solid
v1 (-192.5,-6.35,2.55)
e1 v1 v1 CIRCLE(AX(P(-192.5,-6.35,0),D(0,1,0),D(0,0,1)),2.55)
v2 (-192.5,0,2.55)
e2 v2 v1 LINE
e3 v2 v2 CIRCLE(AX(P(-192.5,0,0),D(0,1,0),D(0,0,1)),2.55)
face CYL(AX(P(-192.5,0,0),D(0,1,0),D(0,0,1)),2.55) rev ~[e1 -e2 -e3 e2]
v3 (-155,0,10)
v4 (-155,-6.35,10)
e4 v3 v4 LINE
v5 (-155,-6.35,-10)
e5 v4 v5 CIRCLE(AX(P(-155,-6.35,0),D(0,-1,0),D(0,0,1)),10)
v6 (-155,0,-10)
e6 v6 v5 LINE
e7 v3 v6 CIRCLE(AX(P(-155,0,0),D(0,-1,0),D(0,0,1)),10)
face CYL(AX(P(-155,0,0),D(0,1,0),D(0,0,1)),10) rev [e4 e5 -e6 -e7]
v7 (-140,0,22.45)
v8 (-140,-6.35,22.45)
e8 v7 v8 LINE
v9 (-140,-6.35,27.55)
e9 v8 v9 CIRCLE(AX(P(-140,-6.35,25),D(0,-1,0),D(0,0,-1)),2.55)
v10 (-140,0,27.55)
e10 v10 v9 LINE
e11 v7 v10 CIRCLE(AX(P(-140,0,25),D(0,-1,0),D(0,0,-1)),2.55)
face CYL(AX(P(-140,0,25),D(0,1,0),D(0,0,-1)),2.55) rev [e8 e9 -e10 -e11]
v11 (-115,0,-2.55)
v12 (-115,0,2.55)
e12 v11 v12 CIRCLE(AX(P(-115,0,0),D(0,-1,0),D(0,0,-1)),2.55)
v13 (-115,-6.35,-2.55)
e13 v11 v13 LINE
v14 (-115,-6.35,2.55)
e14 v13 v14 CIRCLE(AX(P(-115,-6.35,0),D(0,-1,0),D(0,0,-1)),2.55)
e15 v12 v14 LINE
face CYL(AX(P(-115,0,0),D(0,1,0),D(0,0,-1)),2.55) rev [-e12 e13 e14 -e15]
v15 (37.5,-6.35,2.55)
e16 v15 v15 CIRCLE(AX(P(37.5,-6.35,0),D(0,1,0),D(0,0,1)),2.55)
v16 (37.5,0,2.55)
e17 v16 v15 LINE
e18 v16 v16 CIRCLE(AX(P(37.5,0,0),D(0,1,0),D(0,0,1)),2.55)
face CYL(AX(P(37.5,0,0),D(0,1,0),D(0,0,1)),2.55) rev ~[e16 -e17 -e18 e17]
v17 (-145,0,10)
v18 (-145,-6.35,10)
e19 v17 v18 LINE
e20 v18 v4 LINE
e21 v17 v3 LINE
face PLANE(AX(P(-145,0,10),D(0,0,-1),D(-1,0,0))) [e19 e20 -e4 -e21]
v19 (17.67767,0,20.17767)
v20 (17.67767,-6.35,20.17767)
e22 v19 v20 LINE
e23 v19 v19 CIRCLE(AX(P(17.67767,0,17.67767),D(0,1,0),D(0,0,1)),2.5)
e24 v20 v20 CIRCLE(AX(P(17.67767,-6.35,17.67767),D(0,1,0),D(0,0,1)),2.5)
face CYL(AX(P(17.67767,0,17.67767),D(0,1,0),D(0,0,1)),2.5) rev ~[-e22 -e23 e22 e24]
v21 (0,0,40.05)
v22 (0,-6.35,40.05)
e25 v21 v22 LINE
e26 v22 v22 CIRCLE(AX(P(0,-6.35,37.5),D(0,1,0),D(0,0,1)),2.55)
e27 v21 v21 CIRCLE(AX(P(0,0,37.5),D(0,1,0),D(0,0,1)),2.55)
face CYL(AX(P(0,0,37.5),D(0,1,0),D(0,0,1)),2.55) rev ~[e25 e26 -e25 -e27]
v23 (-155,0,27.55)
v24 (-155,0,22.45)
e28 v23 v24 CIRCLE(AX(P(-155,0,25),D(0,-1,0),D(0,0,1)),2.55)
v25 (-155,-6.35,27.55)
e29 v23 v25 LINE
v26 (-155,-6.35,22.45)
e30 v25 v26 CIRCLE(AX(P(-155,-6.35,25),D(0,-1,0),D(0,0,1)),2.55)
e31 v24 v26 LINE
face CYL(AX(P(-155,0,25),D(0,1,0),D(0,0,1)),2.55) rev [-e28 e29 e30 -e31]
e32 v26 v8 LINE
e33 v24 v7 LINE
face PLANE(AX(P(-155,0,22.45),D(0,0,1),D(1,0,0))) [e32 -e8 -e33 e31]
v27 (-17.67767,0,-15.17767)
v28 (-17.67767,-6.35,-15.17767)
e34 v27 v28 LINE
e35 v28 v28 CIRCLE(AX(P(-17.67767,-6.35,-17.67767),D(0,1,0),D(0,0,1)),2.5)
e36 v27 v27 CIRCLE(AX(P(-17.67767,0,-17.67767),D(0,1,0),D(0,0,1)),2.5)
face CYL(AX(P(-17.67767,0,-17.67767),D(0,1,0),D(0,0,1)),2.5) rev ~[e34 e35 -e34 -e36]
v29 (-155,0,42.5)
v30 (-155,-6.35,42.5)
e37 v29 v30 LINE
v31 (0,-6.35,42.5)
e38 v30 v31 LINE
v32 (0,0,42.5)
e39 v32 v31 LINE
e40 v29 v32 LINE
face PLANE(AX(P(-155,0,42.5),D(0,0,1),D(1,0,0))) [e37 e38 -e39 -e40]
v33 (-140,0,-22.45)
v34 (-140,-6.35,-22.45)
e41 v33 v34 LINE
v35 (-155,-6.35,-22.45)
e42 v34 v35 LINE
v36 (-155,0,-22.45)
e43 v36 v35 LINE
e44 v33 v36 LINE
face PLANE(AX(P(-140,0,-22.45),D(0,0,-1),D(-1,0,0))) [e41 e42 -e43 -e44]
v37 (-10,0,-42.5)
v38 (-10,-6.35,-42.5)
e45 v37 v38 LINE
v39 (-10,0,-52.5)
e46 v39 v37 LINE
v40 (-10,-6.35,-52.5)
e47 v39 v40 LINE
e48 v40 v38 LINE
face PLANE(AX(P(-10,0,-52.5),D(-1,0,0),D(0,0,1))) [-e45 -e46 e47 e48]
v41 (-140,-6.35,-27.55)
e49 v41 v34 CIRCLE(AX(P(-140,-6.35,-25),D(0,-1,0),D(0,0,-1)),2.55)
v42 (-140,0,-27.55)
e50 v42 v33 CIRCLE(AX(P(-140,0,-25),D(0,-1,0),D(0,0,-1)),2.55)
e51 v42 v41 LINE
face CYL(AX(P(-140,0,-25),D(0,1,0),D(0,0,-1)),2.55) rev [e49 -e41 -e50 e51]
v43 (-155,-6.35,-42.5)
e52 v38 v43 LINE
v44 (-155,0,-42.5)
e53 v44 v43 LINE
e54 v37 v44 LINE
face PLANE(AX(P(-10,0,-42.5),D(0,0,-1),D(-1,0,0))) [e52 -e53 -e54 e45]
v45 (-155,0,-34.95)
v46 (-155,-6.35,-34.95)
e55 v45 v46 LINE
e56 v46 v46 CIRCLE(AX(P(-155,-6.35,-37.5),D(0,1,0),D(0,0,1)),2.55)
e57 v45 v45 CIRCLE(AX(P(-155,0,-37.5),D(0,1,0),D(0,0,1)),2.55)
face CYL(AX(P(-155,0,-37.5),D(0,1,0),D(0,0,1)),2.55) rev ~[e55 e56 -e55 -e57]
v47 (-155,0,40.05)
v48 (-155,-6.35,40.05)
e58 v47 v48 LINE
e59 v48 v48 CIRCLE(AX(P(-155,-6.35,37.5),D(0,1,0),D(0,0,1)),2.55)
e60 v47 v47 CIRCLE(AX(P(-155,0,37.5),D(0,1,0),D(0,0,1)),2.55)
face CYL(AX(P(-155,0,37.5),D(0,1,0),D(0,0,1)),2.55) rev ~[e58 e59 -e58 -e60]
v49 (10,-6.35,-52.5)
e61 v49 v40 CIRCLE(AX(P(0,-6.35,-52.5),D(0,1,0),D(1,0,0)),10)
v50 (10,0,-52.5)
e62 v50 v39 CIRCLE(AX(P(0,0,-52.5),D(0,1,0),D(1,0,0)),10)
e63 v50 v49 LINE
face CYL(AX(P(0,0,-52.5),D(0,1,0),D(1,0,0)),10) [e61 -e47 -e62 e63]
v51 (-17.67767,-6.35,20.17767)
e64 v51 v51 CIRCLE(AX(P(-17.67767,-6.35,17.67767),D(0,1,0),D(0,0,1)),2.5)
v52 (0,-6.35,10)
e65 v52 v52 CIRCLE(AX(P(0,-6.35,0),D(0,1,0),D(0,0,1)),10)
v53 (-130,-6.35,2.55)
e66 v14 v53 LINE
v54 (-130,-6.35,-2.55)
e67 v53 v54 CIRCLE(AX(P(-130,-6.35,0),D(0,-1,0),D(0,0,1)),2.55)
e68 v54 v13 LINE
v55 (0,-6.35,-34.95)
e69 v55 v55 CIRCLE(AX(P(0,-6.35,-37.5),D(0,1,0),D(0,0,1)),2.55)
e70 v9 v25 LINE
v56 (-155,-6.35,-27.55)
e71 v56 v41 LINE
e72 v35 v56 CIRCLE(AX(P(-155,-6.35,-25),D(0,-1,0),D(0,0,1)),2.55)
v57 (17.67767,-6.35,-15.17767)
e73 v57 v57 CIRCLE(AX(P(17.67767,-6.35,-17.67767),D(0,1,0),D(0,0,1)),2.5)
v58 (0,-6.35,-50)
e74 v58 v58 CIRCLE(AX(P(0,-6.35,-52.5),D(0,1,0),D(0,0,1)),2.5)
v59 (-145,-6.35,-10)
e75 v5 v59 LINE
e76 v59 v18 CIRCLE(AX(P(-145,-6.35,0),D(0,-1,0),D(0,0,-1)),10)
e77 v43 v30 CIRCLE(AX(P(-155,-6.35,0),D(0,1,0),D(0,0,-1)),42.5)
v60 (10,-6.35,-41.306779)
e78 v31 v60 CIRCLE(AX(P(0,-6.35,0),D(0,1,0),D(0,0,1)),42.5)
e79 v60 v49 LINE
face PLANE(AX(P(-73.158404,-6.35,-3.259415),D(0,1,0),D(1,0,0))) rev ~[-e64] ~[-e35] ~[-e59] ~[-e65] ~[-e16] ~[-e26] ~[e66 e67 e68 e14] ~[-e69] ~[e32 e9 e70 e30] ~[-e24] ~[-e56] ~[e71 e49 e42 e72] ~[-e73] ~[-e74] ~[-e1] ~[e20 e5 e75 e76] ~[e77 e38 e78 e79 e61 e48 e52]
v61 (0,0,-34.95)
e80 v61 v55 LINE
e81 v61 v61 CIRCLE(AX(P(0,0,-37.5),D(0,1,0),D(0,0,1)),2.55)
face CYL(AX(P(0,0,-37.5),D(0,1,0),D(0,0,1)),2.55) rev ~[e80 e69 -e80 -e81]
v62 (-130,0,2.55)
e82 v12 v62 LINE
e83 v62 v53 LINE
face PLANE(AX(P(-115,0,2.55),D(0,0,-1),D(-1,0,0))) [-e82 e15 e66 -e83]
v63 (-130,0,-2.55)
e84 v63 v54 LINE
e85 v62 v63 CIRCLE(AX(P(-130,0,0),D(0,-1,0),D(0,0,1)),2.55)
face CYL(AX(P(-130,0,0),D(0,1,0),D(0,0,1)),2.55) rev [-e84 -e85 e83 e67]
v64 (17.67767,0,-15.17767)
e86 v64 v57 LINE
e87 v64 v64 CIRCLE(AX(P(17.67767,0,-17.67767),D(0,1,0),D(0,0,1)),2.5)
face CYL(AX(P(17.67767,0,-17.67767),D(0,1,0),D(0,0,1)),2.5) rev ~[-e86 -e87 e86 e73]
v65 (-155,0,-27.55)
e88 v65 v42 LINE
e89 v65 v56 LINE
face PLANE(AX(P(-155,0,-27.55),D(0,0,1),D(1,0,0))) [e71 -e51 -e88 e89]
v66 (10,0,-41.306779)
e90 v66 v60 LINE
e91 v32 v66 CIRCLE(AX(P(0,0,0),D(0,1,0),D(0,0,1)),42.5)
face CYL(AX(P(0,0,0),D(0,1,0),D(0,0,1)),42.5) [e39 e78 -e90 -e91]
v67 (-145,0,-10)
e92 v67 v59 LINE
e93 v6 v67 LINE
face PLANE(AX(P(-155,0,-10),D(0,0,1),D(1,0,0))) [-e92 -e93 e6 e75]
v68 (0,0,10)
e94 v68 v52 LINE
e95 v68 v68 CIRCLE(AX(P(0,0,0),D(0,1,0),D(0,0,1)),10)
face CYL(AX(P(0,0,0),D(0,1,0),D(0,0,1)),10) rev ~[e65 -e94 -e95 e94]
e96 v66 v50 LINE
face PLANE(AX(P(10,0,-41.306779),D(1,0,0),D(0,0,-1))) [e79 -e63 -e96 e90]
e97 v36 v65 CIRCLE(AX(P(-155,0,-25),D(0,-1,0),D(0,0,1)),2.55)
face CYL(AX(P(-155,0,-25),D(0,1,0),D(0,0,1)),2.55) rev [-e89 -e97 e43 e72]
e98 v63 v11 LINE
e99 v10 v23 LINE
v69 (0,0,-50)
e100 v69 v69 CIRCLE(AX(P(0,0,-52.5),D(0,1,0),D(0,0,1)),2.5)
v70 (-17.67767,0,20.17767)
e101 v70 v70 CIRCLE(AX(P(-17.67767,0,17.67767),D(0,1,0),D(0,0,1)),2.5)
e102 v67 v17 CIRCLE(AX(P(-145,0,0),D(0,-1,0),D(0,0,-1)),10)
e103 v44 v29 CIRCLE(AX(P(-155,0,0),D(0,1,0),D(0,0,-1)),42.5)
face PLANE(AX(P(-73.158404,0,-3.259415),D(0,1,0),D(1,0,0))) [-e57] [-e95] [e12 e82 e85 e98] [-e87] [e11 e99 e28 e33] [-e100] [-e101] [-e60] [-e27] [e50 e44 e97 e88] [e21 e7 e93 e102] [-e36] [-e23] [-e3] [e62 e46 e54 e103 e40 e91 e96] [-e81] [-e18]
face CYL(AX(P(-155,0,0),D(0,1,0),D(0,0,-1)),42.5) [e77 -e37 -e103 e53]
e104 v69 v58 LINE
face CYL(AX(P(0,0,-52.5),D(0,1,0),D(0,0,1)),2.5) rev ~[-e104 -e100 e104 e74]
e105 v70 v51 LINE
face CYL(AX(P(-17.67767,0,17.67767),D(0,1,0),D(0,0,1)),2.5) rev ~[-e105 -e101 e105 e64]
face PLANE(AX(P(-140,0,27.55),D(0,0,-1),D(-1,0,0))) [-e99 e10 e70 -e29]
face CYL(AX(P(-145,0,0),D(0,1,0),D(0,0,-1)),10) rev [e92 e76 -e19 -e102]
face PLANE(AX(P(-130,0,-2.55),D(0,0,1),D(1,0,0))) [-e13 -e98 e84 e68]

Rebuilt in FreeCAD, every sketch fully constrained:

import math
import FreeCAD as App
import Part
import Sketcher
from FreeCAD import Vector

doc = App.newDocument("Part")
body = doc.addObject("PartDesign::Body", "Body")

# Sketch on XZ plane
sketch1 = body.newObject("Sketcher::SketchObject", "Sketch")
sketch1.AttachmentSupport = (doc.getObject("XZ_Plane"), [""])
sketch1.MapMode = "FlatFace"
sketch1.addGeometry(Part.ArcOfCircle(Part.Circle(Vector(-155, 0, 0), Vector(0, 0, 1), 42.5), math.radians(90), math.radians(270)), False)
sketch1.addGeometry(Part.LineSegment(Vector(-155, 42.5, 0), Vector(0, 42.5, 0)), False)
sketch1.addGeometry(Part.ArcOfCircle(Part.Circle(Vector(0, 0, 0), Vector(0, 0, 1), 42.5), math.radians(-76.391039), math.radians(90)), False)
sketch1.addGeometry(Part.LineSegment(Vector(10, -41.306779, 0), Vector(10, -52.5, 0)), False)
sketch1.addGeometry(Part.ArcOfCircle(Part.Circle(Vector(0, -52.5, 0), Vector(0, 0, 1), 10), math.radians(180), math.radians(360)), False)
sketch1.addGeometry(Part.LineSegment(Vector(-10, -52.5, 0), Vector(-10, -42.5, 0)), False)
sketch1.addGeometry(Part.LineSegment(Vector(-10, -42.5, 0), Vector(-155, -42.5, 0)), False)
sketch1.addGeometry(Part.Circle(Vector(-155, 37.5, 0), Vector(0, 0, 1), 2.55), False)
sketch1.addGeometry(Part.LineSegment(Vector(-140, 27.55, 0), Vector(-155, 27.55, 0)), False)
sketch1.addGeometry(Part.ArcOfCircle(Part.Circle(Vector(-155, 25, 0), Vector(0, 0, 1), 2.55), math.radians(90), math.radians(270)), False)
sketch1.addGeometry(Part.LineSegment(Vector(-155, 22.45, 0), Vector(-140, 22.45, 0)), False)
sketch1.addGeometry(Part.ArcOfCircle(Part.Circle(Vector(-140, 25, 0), Vector(0, 0, 1), 2.55), math.radians(-90), math.radians(90)), False)
sketch1.addGeometry(Part.Circle(Vector(-192.5, 0, 0), Vector(0, 0, 1), 2.55), False)
sketch1.addGeometry(Part.LineSegment(Vector(-145, 10, 0), Vector(-155, 10, 0)), False)
sketch1.addGeometry(Part.ArcOfCircle(Part.Circle(Vector(-155, 0, 0), Vector(0, 0, 1), 10), math.radians(90), math.radians(270)), False)
sketch1.addGeometry(Part.LineSegment(Vector(-155, -10, 0), Vector(-145, -10, 0)), False)
sketch1.addGeometry(Part.ArcOfCircle(Part.Circle(Vector(-145, 0, 0), Vector(0, 0, 1), 10), math.radians(-90), math.radians(90)), False)
sketch1.addGeometry(Part.LineSegment(Vector(-130, -2.55, 0), Vector(-115, -2.55, 0)), False)
sketch1.addGeometry(Part.ArcOfCircle(Part.Circle(Vector(-115, 0, 0), Vector(0, 0, 1), 2.55), math.radians(-90), math.radians(90)), False)
sketch1.addGeometry(Part.LineSegment(Vector(-115, 2.55, 0), Vector(-130, 2.55, 0)), False)
sketch1.addGeometry(Part.ArcOfCircle(Part.Circle(Vector(-130, 0, 0), Vector(0, 0, 1), 2.55), math.radians(90), math.radians(270)), False)
sketch1.addGeometry(Part.Circle(Vector(0, 37.5, 0), Vector(0, 0, 1), 2.55), False)
sketch1.addGeometry(Part.Circle(Vector(-17.67767, 17.67767, 0), Vector(0, 0, 1), 2.5), False)
sketch1.addGeometry(Part.Circle(Vector(17.67767, 17.67767, 0), Vector(0, 0, 1), 2.5), False)
sketch1.addGeometry(Part.Circle(Vector(0, 0, 0), Vector(0, 0, 1), 10), False)
sketch1.addGeometry(Part.Circle(Vector(37.5, 0, 0), Vector(0, 0, 1), 2.55), False)
sketch1.addGeometry(Part.LineSegment(Vector(-140, -22.45, 0), Vector(-155, -22.45, 0)), False)
sketch1.addGeometry(Part.ArcOfCircle(Part.Circle(Vector(-155, -25, 0), Vector(0, 0, 1), 2.55), math.radians(90), math.radians(270)), False)
sketch1.addGeometry(Part.LineSegment(Vector(-155, -27.55, 0), Vector(-140, -27.55, 0)), False)
sketch1.addGeometry(Part.ArcOfCircle(Part.Circle(Vector(-140, -25, 0), Vector(0, 0, 1), 2.55), math.radians(-90), math.radians(90)), False)
sketch1.addGeometry(Part.Circle(Vector(-155, -37.5, 0), Vector(0, 0, 1), 2.55), False)
sketch1.addGeometry(Part.Circle(Vector(-17.67767, -17.67767, 0), Vector(0, 0, 1), 2.5), False)
sketch1.addGeometry(Part.Circle(Vector(17.67767, -17.67767, 0), Vector(0, 0, 1), 2.5), False)
sketch1.addGeometry(Part.Circle(Vector(0, -37.5, 0), Vector(0, 0, 1), 2.55), False)
sketch1.addGeometry(Part.Circle(Vector(0, -52.5, 0), Vector(0, 0, 1), 2.5), False)
sketch1.addConstraint(Sketcher.Constraint("Tangent", 0, 1, 1, 1))
sketch1.addConstraint(Sketcher.Constraint("Tangent", 1, 2, 2, 2))
sketch1.addConstraint(Sketcher.Constraint("Coincident", 2, 1, 3, 1))
sketch1.addConstraint(Sketcher.Constraint("Tangent", 3, 2, 4, 2))
sketch1.addConstraint(Sketcher.Constraint("Tangent", 4, 1, 5, 1))
sketch1.addConstraint(Sketcher.Constraint("Coincident", 5, 2, 6, 1))
sketch1.addConstraint(Sketcher.Constraint("Tangent", 6, 2, 0, 2))
sketch1.addConstraint(Sketcher.Constraint("Tangent", 8, 2, 9, 1))
sketch1.addConstraint(Sketcher.Constraint("Tangent", 9, 2, 10, 1))
sketch1.addConstraint(Sketcher.Constraint("Tangent", 10, 2, 11, 1))
sketch1.addConstraint(Sketcher.Constraint("Tangent", 11, 2, 8, 1))
sketch1.addConstraint(Sketcher.Constraint("Tangent", 13, 2, 14, 1))
sketch1.addConstraint(Sketcher.Constraint("Tangent", 14, 2, 15, 1))
sketch1.addConstraint(Sketcher.Constraint("Tangent", 15, 2, 16, 1))
sketch1.addConstraint(Sketcher.Constraint("Tangent", 16, 2, 13, 1))
sketch1.addConstraint(Sketcher.Constraint("Tangent", 17, 2, 18, 1))
sketch1.addConstraint(Sketcher.Constraint("Tangent", 18, 2, 19, 1))
sketch1.addConstraint(Sketcher.Constraint("Tangent", 19, 2, 20, 1))
sketch1.addConstraint(Sketcher.Constraint("Tangent", 20, 2, 17, 1))
sketch1.addConstraint(Sketcher.Constraint("Tangent", 26, 2, 27, 1))
sketch1.addConstraint(Sketcher.Constraint("Tangent", 27, 2, 28, 1))
sketch1.addConstraint(Sketcher.Constraint("Tangent", 28, 2, 29, 1))
sketch1.addConstraint(Sketcher.Constraint("Tangent", 29, 2, 26, 1))
sketch1.addConstraint(Sketcher.Constraint("Horizontal", 1))
sketch1.addConstraint(Sketcher.Constraint("Vertical", 3))
sketch1.addConstraint(Sketcher.Constraint("Vertical", 5))
sketch1.addConstraint(Sketcher.Constraint("Horizontal", 6))
sketch1.addConstraint(Sketcher.Constraint("Horizontal", 8))
sketch1.addConstraint(Sketcher.Constraint("Horizontal", 10))
sketch1.addConstraint(Sketcher.Constraint("Horizontal", 13))
sketch1.addConstraint(Sketcher.Constraint("Horizontal", 15))
sketch1.addConstraint(Sketcher.Constraint("Horizontal", 17))
sketch1.addConstraint(Sketcher.Constraint("Horizontal", 19))
sketch1.addConstraint(Sketcher.Constraint("Horizontal", 26))
sketch1.addConstraint(Sketcher.Constraint("Horizontal", 28))
sketch1.addConstraint(Sketcher.Constraint("Coincident", 2, 3, -1, 1))
sketch1.addConstraint(Sketcher.Constraint("Coincident", 24, 3, -1, 1))
sketch1.addConstraint(Sketcher.Constraint("Coincident", 14, 3, 0, 3))
sketch1.addConstraint(Sketcher.Constraint("Coincident", 34, 3, 4, 3))
sketch1.addConstraint(Sketcher.Constraint("Equal", 0, 2))
sketch1.addConstraint(Sketcher.Constraint("Equal", 7, 9))
sketch1.addConstraint(Sketcher.Constraint("Equal", 11, 12))
sketch1.addConstraint(Sketcher.Constraint("Equal", 4, 14))
sketch1.addConstraint(Sketcher.Constraint("Equal", 12, 18))
sketch1.addConstraint(Sketcher.Constraint("Equal", 20, 21))
sketch1.addConstraint(Sketcher.Constraint("Equal", 22, 23))
sketch1.addConstraint(Sketcher.Constraint("Equal", 16, 24))
sketch1.addConstraint(Sketcher.Constraint("Equal", 21, 25))
sketch1.addConstraint(Sketcher.Constraint("Equal", 25, 27))
sketch1.addConstraint(Sketcher.Constraint("Equal", 29, 30))
sketch1.addConstraint(Sketcher.Constraint("Equal", 23, 31))
sketch1.addConstraint(Sketcher.Constraint("Equal", 31, 32))
sketch1.addConstraint(Sketcher.Constraint("Equal", 30, 33))
sketch1.addConstraint(Sketcher.Constraint("Equal", 32, 34))
sketch1.addConstraint(Sketcher.Constraint("Symmetric", 23, 3, 31, 3, -1, 1))
sketch1.addConstraint(Sketcher.Constraint("Symmetric", 22, 3, 32, 3, -1, 1))
sketch1.addConstraint(Sketcher.Constraint("Symmetric", 21, 3, 33, 3, -1, 1))
sketch1.addConstraint(Sketcher.Constraint("Symmetric", 22, 3, 23, 3, -2))
sketch1.addConstraint(Sketcher.Constraint("Symmetric", 9, 3, 27, 3, -1))
sketch1.addConstraint(Sketcher.Constraint("Symmetric", 7, 3, 30, 3, -1))
sketch1.addConstraint(Sketcher.Constraint("PointOnObject", 4, 3, -2))
sketch1.addConstraint(Sketcher.Constraint("PointOnObject", 12, 3, -1))
sketch1.addConstraint(Sketcher.Constraint("PointOnObject", 18, 3, -1))
sketch1.addConstraint(Sketcher.Constraint("PointOnObject", 21, 3, -2))
sketch1.addConstraint(Sketcher.Constraint("PointOnObject", 25, 3, -1))
sketch1.addConstraint(Sketcher.Constraint("Horizontal", 7, 3, 21, 3))
sketch1.addConstraint(Sketcher.Constraint("Vertical", 0, 3, 7, 3))
sketch1.addConstraint(Sketcher.Constraint("Vertical", 7, 3, 9, 3))
sketch1.addConstraint(Sketcher.Constraint("Vertical", 11, 3, 29, 3))
sketch1.addConstraint(Sketcher.Constraint("Equal", 10, 17))
sketch1.addConstraint(Sketcher.Constraint("Equal", 15, 5))
sketch1.addConstraint(Sketcher.Constraint("Diameter", 22, 5.0))
sketch1.addConstraint(Sketcher.Constraint("Diameter", 24, 20.0))
sketch1.addConstraint(Sketcher.Constraint("Diameter", 7, 5.1))
sketch1.addConstraint(Sketcher.Constraint("Radius", 0, 42.5))
sketch1.addConstraint(Sketcher.Constraint("DistanceX", 1, 1, 1, 2, 155.0))
sketch1.addConstraint(Sketcher.Constraint("DistanceX", 8, 2, 8, 1, 15.0))
sketch1.addConstraint(Sketcher.Constraint("DistanceX", 13, 2, 13, 1, 10.0))
sketch1.addConstraint(Sketcher.Constraint("DistanceY", -1, 1, 9, 3, 25.0))
sketch1.addConstraint(Sketcher.Constraint("DistanceX", 18, 3, -1, 1, 115.0))
sketch1.addConstraint(Sketcher.Constraint("DistanceY", 4, 3, 7, 3, 90.0))
sketch1.addConstraint(Sketcher.Constraint("DistanceX", 12, 3, -1, 1, 192.5))
sketch1.addConstraint(Sketcher.Constraint("DistanceX", -1, 1, 25, 3, 37.5))
sketch1.addConstraint(Sketcher.Constraint("DistanceX", 22, 3, -1, 1, 17.67767))
sketch1.addConstraint(Sketcher.Constraint("DistanceY", -1, 1, 22, 3, 17.67767))
pad1 = body.newObject("PartDesign::Pad", "Pad")
pad1.Profile = sketch1
pad1.Length = 6.35

doc.recompute()
